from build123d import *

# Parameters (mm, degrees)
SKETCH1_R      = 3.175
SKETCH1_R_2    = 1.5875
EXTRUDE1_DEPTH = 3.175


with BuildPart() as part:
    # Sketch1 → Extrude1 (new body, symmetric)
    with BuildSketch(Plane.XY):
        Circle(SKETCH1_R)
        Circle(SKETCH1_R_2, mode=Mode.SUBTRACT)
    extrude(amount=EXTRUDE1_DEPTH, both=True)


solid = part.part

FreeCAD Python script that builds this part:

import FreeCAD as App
import Part
import Sketcher
from FreeCAD import Vector
Q = App.Units.Quantity

doc = App.newDocument("Part")
body = doc.addObject("PartDesign::Body", "Body")

# Sketch on XY plane
sketch1 = doc.addObject("Sketcher::SketchObject", "Sketch")
body.addObject(sketch1)
sketch1.AttachmentSupport = (doc.XY_Plane, [""])
sketch1.MapMode = "FlatFace"
sketch1.addGeometry(Part.Circle(Vector(0, 0, 0), Vector(0, 0, 1), 3.2), False)
sketch1.addGeometry(Part.Circle(Vector(0, 0, 0), Vector(0, 0, 1), 1.6), False)
sketch1.addConstraint(Sketcher.Constraint("Coincident", 0, 3, -1, 1))
sketch1.addConstraint(Sketcher.Constraint("Coincident", 1, 3, -1, 1))
sketch1.addConstraint(Sketcher.Constraint("Diameter", 0, Q("0.25 in")))
sketch1.addConstraint(Sketcher.Constraint("Diameter", 1, Q("0.125 in")))
pad1 = doc.addObject("PartDesign::Pad", "Pad")
body.addObject(pad1)
pad1.Profile = sketch1
pad1.Length = Q("0.25 in")
pad1.Midplane = True

doc.recompute()
